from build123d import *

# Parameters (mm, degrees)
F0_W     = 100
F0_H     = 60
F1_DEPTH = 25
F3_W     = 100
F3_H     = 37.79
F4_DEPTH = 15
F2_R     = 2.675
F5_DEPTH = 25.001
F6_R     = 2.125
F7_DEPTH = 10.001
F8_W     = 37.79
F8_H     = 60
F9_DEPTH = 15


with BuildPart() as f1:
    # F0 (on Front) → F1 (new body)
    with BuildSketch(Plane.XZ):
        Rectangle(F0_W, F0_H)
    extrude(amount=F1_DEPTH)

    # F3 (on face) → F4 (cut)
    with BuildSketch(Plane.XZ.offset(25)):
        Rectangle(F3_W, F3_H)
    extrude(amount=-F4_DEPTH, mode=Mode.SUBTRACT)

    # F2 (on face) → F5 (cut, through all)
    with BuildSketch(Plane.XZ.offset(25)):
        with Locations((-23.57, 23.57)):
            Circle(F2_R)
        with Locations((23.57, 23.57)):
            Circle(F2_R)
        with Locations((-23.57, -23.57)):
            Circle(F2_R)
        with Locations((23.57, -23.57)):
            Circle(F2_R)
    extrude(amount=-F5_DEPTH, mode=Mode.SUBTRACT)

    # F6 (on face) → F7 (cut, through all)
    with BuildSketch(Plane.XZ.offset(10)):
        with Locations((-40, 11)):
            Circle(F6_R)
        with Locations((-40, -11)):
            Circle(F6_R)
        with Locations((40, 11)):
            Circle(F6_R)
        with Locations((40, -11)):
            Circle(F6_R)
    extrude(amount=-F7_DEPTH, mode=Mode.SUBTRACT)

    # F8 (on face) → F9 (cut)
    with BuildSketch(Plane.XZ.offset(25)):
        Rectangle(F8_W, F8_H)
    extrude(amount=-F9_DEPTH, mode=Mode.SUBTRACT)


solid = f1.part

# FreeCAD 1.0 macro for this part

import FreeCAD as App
import Part
import Sketcher
from FreeCAD import Vector

doc = App.newDocument("Part")
body = doc.addObject("PartDesign::Body", "Body")

sketch1 = doc.addObject("Sketcher::SketchObject", "Sketch")
body.addObject(sketch1)
sketch1.AttachmentSupport = (doc.XZ_Plane, [""])
sketch1.MapMode = "FlatFace"
sketch1.addGeometry([
    Part.LineSegment(Vector(-50, 30, 0), Vector(-50, -30, 0)),
    Part.LineSegment(Vector(-50, -30, 0), Vector(50, -30, 0)),
    Part.LineSegment(Vector(50, -30, 0), Vector(50, 30, 0)),
    Part.LineSegment(Vector(50, 30, 0), Vector(-50, 30, 0)),
], False)
sketch1.addConstraint([
    Sketcher.Constraint("Coincident", 0, 2, 1, 1),
    Sketcher.Constraint("Coincident", 1, 2, 2, 1),
    Sketcher.Constraint("Coincident", 2, 2, 3, 1),
    Sketcher.Constraint("Coincident", 3, 2, 0, 1),
    Sketcher.Constraint("Vertical", 0),
    Sketcher.Constraint("Horizontal", 1),
    Sketcher.Constraint("Vertical", 2),
    Sketcher.Constraint("Horizontal", 3),
    Sketcher.Constraint("Symmetric", 0, 2, 2, 2, -1, 1),
    Sketcher.Constraint("DistanceX", 1, 1, 1, 2, 100.0),
    Sketcher.Constraint("DistanceY", 0, 2, 0, 1, 60.0),
])
pad1 = doc.addObject("PartDesign::Pad", "Pad")
body.addObject(pad1)
pad1.Profile = sketch1
pad1.Length = 25

sketch2 = doc.addObject("Sketcher::SketchObject", "Sketch001")
body.addObject(sketch2)
sketch2.AttachmentSupport = (doc.XZ_Plane, [""])
sketch2.MapMode = "FlatFace"
sketch2.AttachmentOffset = App.Placement(Vector(0, 0, 25), App.Rotation())
sketch2.addGeometry([
    Part.LineSegment(Vector(-50, 18.895, 0), Vector(-50, -18.895, 0)),
    Part.LineSegment(Vector(-50, -18.895, 0), Vector(50, -18.895, 0)),
    Part.LineSegment(Vector(50, -18.895, 0), Vector(50, 18.895, 0)),
    Part.LineSegment(Vector(50, 18.895, 0), Vector(-50, 18.895, 0)),
], False)
sketch2.addConstraint([
    Sketcher.Constraint("Coincident", 0, 2, 1, 1),
    Sketcher.Constraint("Coincident", 1, 2, 2, 1),
    Sketcher.Constraint("Coincident", 2, 2, 3, 1),
    Sketcher.Constraint("Coincident", 3, 2, 0, 1),
    Sketcher.Constraint("Vertical", 0),
    Sketcher.Constraint("Horizontal", 1),
    Sketcher.Constraint("Vertical", 2),
    Sketcher.Constraint("Horizontal", 3),
    Sketcher.Constraint("Symmetric", 0, 2, 2, 2, -1, 1),
    Sketcher.Constraint("DistanceX", 1, 1, 1, 2, 100.0),
    Sketcher.Constraint("DistanceY", 0, 2, 0, 1, 37.79),
])
pocket1 = doc.addObject("PartDesign::Pocket", "Pocket")
body.addObject(pocket1)
pocket1.Profile = sketch2
pocket1.Length = 15

sketch3 = doc.addObject("Sketcher::SketchObject", "Sketch002")
body.addObject(sketch3)
sketch3.AttachmentSupport = (doc.XZ_Plane, [""])
sketch3.MapMode = "FlatFace"
sketch3.AttachmentOffset = App.Placement(Vector(0, 0, 25), App.Rotation())
sketch3.addGeometry([
    Part.Circle(Vector(-23.57, 23.57, 0), Vector(0, 0, 1), 2.675),
    Part.Circle(Vector(23.57, 23.57, 0), Vector(0, 0, 1), 2.675),
    Part.Circle(Vector(-23.57, -23.57, 0), Vector(0, 0, 1), 2.675),
    Part.Circle(Vector(23.57, -23.57, 0), Vector(0, 0, 1), 2.675),
], False)
sketch3.addConstraint([
    Sketcher.Constraint("Equal", 0, 1),
    Sketcher.Constraint("Equal", 1, 2),
    Sketcher.Constraint("Equal", 2, 3),
    Sketcher.Constraint("Symmetric", 1, 3, 2, 3, -1, 1),
    Sketcher.Constraint("Symmetric", 0, 3, 3, 3, -1, 1),
    Sketcher.Constraint("Symmetric", 0, 3, 1, 3, -2),
    Sketcher.Constraint("Diameter", 0, 5.35),
    Sketcher.Constraint("DistanceX", 0, 3, -1, 1, 23.57),
    Sketcher.Constraint("DistanceY", -1, 1, 0, 3, 23.57),
])
pocket2 = doc.addObject("PartDesign::Pocket", "Pocket001")
body.addObject(pocket2)
pocket2.Profile = sketch3
pocket2.Type = "ThroughAll"

sketch4 = doc.addObject("Sketcher::SketchObject", "Sketch003")
body.addObject(sketch4)
sketch4.AttachmentSupport = (doc.XZ_Plane, [""])
sketch4.MapMode = "FlatFace"
sketch4.AttachmentOffset = App.Placement(Vector(0, 0, 10), App.Rotation())
sketch4.addGeometry([
    Part.Circle(Vector(-40, 11, 0), Vector(0, 0, 1), 2.125),
    Part.Circle(Vector(-40, -11, 0), Vector(0, 0, 1), 2.125),
    Part.Circle(Vector(40, 11, 0), Vector(0, 0, 1), 2.125),
    Part.Circle(Vector(40, -11, 0), Vector(0, 0, 1), 2.125),
], False)
sketch4.addConstraint([
    Sketcher.Constraint("Equal", 0, 1),
    Sketcher.Constraint("Equal", 1, 2),
    Sketcher.Constraint("Equal", 2, 3),
    Sketcher.Constraint("Symmetric", 1, 3, 2, 3, -1, 1),
    Sketcher.Constraint("Symmetric", 0, 3, 3, 3, -1, 1),
    Sketcher.Constraint("Symmetric", 0, 3, 2, 3, -2),
    Sketcher.Constraint("Diameter", 0, 4.25),
    Sketcher.Constraint("DistanceX", 0, 3, -1, 1, 40.0),
    Sketcher.Constraint("DistanceY", -1, 1, 0, 3, 11.0),
])
pocket3 = doc.addObject("PartDesign::Pocket", "Pocket002")
body.addObject(pocket3)
pocket3.Profile = sketch4
pocket3.Type = "ThroughAll"

sketch5 = doc.addObject("Sketcher::SketchObject", "Sketch004")
body.addObject(sketch5)
sketch5.AttachmentSupport = (doc.XZ_Plane, [""])
sketch5.MapMode = "FlatFace"
sketch5.AttachmentOffset = App.Placement(Vector(0, 0, 25), App.Rotation())
sketch5.addGeometry([
    Part.LineSegment(Vector(-18.895, 30, 0), Vector(-18.895, -30, 0)),
    Part.LineSegment(Vector(-18.895, -30, 0), Vector(18.895, -30, 0)),
    Part.LineSegment(Vector(18.895, -30, 0), Vector(18.895, 30, 0)),
    Part.LineSegment(Vector(18.895, 30, 0), Vector(-18.895, 30, 0)),
], False)
sketch5.addConstraint([
    Sketcher.Constraint("Coincident", 0, 2, 1, 1),
    Sketcher.Constraint("Coincident", 1, 2, 2, 1),
    Sketcher.Constraint("Coincident", 2, 2, 3, 1),
    Sketcher.Constraint("Coincident", 3, 2, 0, 1),
    Sketcher.Constraint("Vertical", 0),
    Sketcher.Constraint("Horizontal", 1),
    Sketcher.Constraint("Vertical", 2),
    Sketcher.Constraint("Horizontal", 3),
    Sketcher.Constraint("Symmetric", 0, 2, 2, 2, -1, 1),
    Sketcher.Constraint("DistanceY", 0, 2, 0, 1, 60.0),
    Sketcher.Constraint("DistanceX", 1, 1, 1, 2, 37.79),
])
pocket4 = doc.addObject("PartDesign::Pocket", "Pocket003")
body.addObject(pocket4)
pocket4.Profile = sketch5
pocket4.Length = 15

doc.recompute()
